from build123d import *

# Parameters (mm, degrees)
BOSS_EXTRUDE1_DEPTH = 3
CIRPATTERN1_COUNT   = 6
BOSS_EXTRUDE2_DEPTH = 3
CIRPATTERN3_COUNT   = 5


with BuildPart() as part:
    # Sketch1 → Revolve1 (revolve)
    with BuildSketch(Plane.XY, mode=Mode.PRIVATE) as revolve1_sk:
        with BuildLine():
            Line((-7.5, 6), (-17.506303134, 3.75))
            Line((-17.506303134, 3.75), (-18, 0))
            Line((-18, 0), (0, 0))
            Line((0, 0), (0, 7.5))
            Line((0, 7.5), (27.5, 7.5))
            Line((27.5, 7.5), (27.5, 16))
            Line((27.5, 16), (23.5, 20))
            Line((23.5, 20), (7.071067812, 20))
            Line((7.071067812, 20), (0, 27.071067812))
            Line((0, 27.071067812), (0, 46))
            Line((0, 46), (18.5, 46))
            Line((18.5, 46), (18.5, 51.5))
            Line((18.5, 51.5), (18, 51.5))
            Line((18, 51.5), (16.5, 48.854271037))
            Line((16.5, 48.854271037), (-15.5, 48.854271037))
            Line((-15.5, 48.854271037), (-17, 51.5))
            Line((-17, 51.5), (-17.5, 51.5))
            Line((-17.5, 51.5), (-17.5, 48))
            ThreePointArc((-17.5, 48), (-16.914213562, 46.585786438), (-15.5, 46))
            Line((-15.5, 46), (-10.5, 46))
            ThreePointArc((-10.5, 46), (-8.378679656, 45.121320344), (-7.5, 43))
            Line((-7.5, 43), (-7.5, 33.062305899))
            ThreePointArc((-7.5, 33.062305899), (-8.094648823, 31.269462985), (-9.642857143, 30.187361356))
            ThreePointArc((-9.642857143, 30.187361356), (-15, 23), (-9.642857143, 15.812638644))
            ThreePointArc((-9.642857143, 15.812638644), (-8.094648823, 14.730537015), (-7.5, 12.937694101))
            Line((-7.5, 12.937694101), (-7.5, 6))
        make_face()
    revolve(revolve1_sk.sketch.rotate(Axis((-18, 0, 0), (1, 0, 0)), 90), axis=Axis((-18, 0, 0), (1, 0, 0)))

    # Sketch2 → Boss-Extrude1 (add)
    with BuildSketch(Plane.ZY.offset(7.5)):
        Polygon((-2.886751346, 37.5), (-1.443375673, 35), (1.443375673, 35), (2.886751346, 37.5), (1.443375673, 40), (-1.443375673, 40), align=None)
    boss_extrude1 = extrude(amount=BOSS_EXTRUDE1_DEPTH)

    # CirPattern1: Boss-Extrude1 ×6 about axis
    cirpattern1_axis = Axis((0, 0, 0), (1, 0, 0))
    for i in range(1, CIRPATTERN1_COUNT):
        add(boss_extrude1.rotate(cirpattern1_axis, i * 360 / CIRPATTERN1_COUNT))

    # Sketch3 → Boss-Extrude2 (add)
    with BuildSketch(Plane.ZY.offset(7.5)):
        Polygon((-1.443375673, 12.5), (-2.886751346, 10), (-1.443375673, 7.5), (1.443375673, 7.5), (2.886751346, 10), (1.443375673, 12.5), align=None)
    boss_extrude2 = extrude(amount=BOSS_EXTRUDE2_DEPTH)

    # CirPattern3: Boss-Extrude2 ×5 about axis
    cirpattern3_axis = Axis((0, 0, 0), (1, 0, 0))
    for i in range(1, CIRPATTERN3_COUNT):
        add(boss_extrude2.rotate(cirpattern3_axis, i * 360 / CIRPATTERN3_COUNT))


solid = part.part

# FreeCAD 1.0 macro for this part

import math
import FreeCAD as App
import Part
import Sketcher

V = App.Vector
Q = App.Units.Quantity


def add_polygon(sketch, points):
    """Adds a closed chain of lines whose ends are joined by coincident constraints."""
    first, n = sketch.GeometryCount, len(points)
    for a, b in zip(points, points[1:] + points[:1]):
        sketch.addGeometry(Part.LineSegment(App.Vector(*a, 0), App.Vector(*b, 0)), False)
    for i in range(n):
        sketch.addConstraint(Sketcher.Constraint("Coincident", first + i, 2, first + (i + 1) % n, 1))

doc = App.newDocument("Part")
params = doc.addObject("Spreadsheet::Sheet", "Params")
for row, (alias, value) in enumerate([
    ("sketch1_radius", "2 mm"),
    ("sketch1_radius2", "3 mm"),
    ("sketch1_radius3", "7.5 mm"),
    ("sketch1_width", "18 mm"),
    ("sketch1_width2", "32 mm"),
    ("revolution_angle", "360 deg"),
    ("pad1_length", "3 mm"),
    ("pad2_length", "3 mm"),
], start=1):
    params.set(f"A{row}", alias)
    params.set(f"B{row}", "=" + value)
    params.setAlias(f"B{row}", alias)

body = doc.addObject("PartDesign::Body", "Body")

# Sketch on XY plane
sketch1 = body.newObject("Sketcher::SketchObject", "Sketch")
sketch1.AttachmentSupport = (doc.getObject("XY_Plane"), [""])
sketch1.MapMode = "FlatFace"
sketch1.addGeometry([
    Part.LineSegment(V(-7.5, 6, 0), V(-17.5, 3.8, 0)),  # 0
    Part.LineSegment(V(-17.5, 3.8, 0), V(-18, 0, 0)),  # 1
    Part.LineSegment(V(-18, 0, 0), V(0, 0, 0)),  # 2
    Part.LineSegment(V(0, 0, 0), V(0, 7.5, 0)),  # 3
    Part.LineSegment(V(0, 7.5, 0), V(27.5, 7.5, 0)),  # 4
    Part.LineSegment(V(27.5, 7.5, 0), V(27.5, 16, 0)),  # 5
    Part.LineSegment(V(27.5, 16, 0), V(23.5, 20, 0)),  # 6
    Part.LineSegment(V(23.5, 20, 0), V(7.1, 20, 0)),  # 7
    Part.LineSegment(V(7.1, 20, 0), V(0, 27.1, 0)),  # 8
    Part.LineSegment(V(0, 27.1, 0), V(0, 46, 0)),  # 9
    Part.LineSegment(V(0, 46, 0), V(18.5, 46, 0)),  # 10
    Part.LineSegment(V(18.5, 46, 0), V(18.5, 51.5, 0)),  # 11
    Part.LineSegment(V(18.5, 51.5, 0), V(18, 51.5, 0)),  # 12
    Part.LineSegment(V(18, 51.5, 0), V(16.5, 48.9, 0)),  # 13
    Part.LineSegment(V(16.5, 48.9, 0), V(-15.5, 48.9, 0)),  # 14
    Part.LineSegment(V(-15.5, 48.9, 0), V(-17, 51.5, 0)),  # 15
    Part.LineSegment(V(-17, 51.5, 0), V(-17.5, 51.5, 0)),  # 16
    Part.LineSegment(V(-17.5, 51.5, 0), V(-17.5, 48, 0)),  # 17
    Part.ArcOfCircle(Part.Circle(V(-15.5, 48, 0), V(0, 0, 1), 2), math.radians(-180), math.radians(-90)),  # 18
    Part.LineSegment(V(-15.5, 46, 0), V(-10.5, 46, 0)),  # 19
    Part.ArcOfCircle(Part.Circle(V(-10.5, 43, 0), V(0, 0, 1), 3), math.radians(0), math.radians(90)),  # 20
    Part.LineSegment(V(-7.5, 43, 0), V(-7.5, 33.1, 0)),  # 21
    Part.ArcOfCircle(Part.Circle(V(-10.5, 33.1, 0), V(0, 0, 1), 3), math.radians(-73), math.radians(0)),  # 22
    Part.ArcOfCircle(Part.Circle(V(-7.5, 23, 0), V(0, 0, 1), 7.5), math.radians(107), math.radians(253)),  # 23
    Part.ArcOfCircle(Part.Circle(V(-10.5, 12.9, 0), V(0, 0, 1), 3), math.radians(0), math.radians(73)),  # 24
    Part.LineSegment(V(-7.5, 12.9, 0), V(-7.5, 6, 0)),  # 25
], False)
sketch1.addConstraint([
    Sketcher.Constraint("Coincident", 0, 2, 1, 1),
    Sketcher.Constraint("Coincident", 1, 2, 2, 1),
    Sketcher.Constraint("Coincident", 2, 2, 3, 1),
    Sketcher.Constraint("Coincident", 3, 2, 4, 1),
    Sketcher.Constraint("Coincident", 4, 2, 5, 1),
    Sketcher.Constraint("Coincident", 5, 2, 6, 1),
    Sketcher.Constraint("Coincident", 6, 2, 7, 1),
    Sketcher.Constraint("Coincident", 7, 2, 8, 1),
    Sketcher.Constraint("Coincident", 8, 2, 9, 1),
    Sketcher.Constraint("Coincident", 9, 2, 10, 1),
    Sketcher.Constraint("Coincident", 10, 2, 11, 1),
    Sketcher.Constraint("Coincident", 11, 2, 12, 1),
    Sketcher.Constraint("Coincident", 12, 2, 13, 1),
    Sketcher.Constraint("Coincident", 13, 2, 14, 1),
    Sketcher.Constraint("Coincident", 14, 2, 15, 1),
    Sketcher.Constraint("Coincident", 15, 2, 16, 1),
    Sketcher.Constraint("Coincident", 16, 2, 17, 1),
    Sketcher.Constraint("Tangent", 17, 2, 18, 1),
    Sketcher.Constraint("Tangent", 18, 2, 19, 1),
    Sketcher.Constraint("Tangent", 19, 2, 20, 2),
    Sketcher.Constraint("Tangent", 20, 1, 21, 1),
    Sketcher.Constraint("Tangent", 21, 2, 22, 2),
    Sketcher.Constraint("Tangent", 22, 1, 23, 1),
    Sketcher.Constraint("Tangent", 23, 2, 24, 2),
    Sketcher.Constraint("Tangent", 24, 1, 25, 1),
    Sketcher.Constraint("Coincident", 25, 2, 0, 1),
    Sketcher.Constraint("Horizontal", 2),
    Sketcher.Constraint("Vertical", 3),
    Sketcher.Constraint("Horizontal", 4),
    Sketcher.Constraint("Vertical", 5),
    Sketcher.Constraint("Horizontal", 7),
    Sketcher.Constraint("Vertical", 9),
    Sketcher.Constraint("Horizontal", 10),
    Sketcher.Constraint("Vertical", 11),
    Sketcher.Constraint("Horizontal", 12),
    Sketcher.Constraint("Horizontal", 14),
    Sketcher.Constraint("Horizontal", 16),
    Sketcher.Constraint("Vertical", 17),
    Sketcher.Constraint("Horizontal", 19),
    Sketcher.Constraint("Vertical", 21),
    Sketcher.Constraint("Vertical", 25),
    Sketcher.Constraint("Coincident", 2, 2, -1, 1),
    Sketcher.Constraint("Equal", 20, 22),
    Sketcher.Constraint("Equal", 22, 24),
    Sketcher.Constraint("PointOnObject", 8, 2, -2),
    Sketcher.Constraint("Parallel", 6, 8),
    Sketcher.Constraint("Horizontal", 12, 2, 15, 2),
    Sketcher.Constraint("Horizontal", 10, 2, 18, 2),
    Sketcher.Constraint("Vertical", 22, 3, 24, 3),
    Sketcher.Constraint("Vertical", 18, 3, 14, 2),
    Sketcher.Constraint("Vertical", 23, 3, 20, 1),
    Sketcher.Constraint("Equal", 12, 16),
    Sketcher.Constraint("Equal", 13, 15),
    Sketcher.Constraint("Radius", 18, Q("2 mm")),
    Sketcher.Constraint("Radius", 20, Q("3 mm")),
    Sketcher.Constraint("Radius", 23, Q("7.5 mm")),
    Sketcher.Constraint("DistanceX", 2, 1, 2, 2, Q("18 mm")),
    Sketcher.Constraint("DistanceX", 14, 2, 14, 1, Q("32 mm")),
    Sketcher.Constraint("DistanceX", 19, 1, 19, 2, Q("5 mm")),
    Sketcher.Constraint("Angle", 6, Q("135 deg")),
    Sketcher.Constraint("Distance", 8, Q("10 mm")),
    Sketcher.Constraint("DistanceX", 4, 1, 4, 2, Q("27.5 mm")),
    Sketcher.Constraint("DistanceX", 10, 1, 10, 2, Q("18.5 mm")),
    Sketcher.Constraint("DistanceX", 12, 2, 12, 1, Q("0.5 mm")),
    Sketcher.Constraint("DistanceY", 3, 1, 3, 2, Q("7.5 mm")),
    Sketcher.Constraint("DistanceY", 5, 1, 5, 2, Q("8.5 mm")),
    Sketcher.Constraint("DistanceY", 11, 1, 11, 2, Q("5.5 mm")),
    Sketcher.Constraint("DistanceY", -1, 1, 18, 3, Q("48 mm")),
    Sketcher.Constraint("DistanceY", -1, 1, 23, 3, Q("23 mm")),
    Sketcher.Constraint("DistanceY", -1, 1, 6, 2, Q("20 mm")),
    Sketcher.Constraint("DistanceY", -1, 1, 25, 2, Q("6 mm")),
    Sketcher.Constraint("Angle", 1, Q("-97.5 deg")),
    Sketcher.Constraint("DistanceY", -1, 1, 0, 2, Q("3.75 mm")),
    Sketcher.Constraint("Distance", 13, Q("3.041362 mm")),
])
sketch1.setExpression("Constraints[53]", "Params.sketch1_radius")
sketch1.setExpression("Constraints[54]", "Params.sketch1_radius2")
sketch1.setExpression("Constraints[55]", "Params.sketch1_radius3")
sketch1.setExpression("Constraints[56]", "Params.sketch1_width")
sketch1.setExpression("Constraints[57]", "Params.sketch1_width2")
revolution = body.newObject("PartDesign::Revolution", "Revolution")
revolution.Profile = sketch1
revolution.ReferenceAxis = (sketch1, ["H_Axis"])
revolution.setExpression("Angle", "Params.revolution_angle")

# Sketch on YZ plane
sketch2 = body.newObject("Sketcher::SketchObject", "Sketch001")
sketch2.AttachmentSupport = (doc.getObject("YZ_Plane"), [""])
sketch2.MapMode = "FlatFace"
sketch2.AttachmentOffset = App.Placement(V(0, 0, -7.5), App.Rotation())
add_polygon(sketch2, [(37.5, -2.9), (35, -1.4), (35, 1.4), (37.5, 2.9), (40, 1.4), (40, -1.4)])  # lines 0-5
sketch2.addConstraint([
    Sketcher.Constraint("Vertical", 1),
    Sketcher.Constraint("Vertical", 4),
    Sketcher.Constraint("Symmetric", 2, 2, 5, 2, -1),
    Sketcher.Constraint("Parallel", 0, 3),
    Sketcher.Constraint("Parallel", 2, 5),
    Sketcher.Constraint("Horizontal", 1, 2, 3, 2),
    Sketcher.Constraint("Horizontal", 0, 2, 4, 2),
    Sketcher.Constraint("Angle", 0, Q("150 deg")),
    Sketcher.Constraint("DistanceX", -1, 1, 0, 2, Q("35 mm")),
    Sketcher.Constraint("DistanceX", -1, 1, 3, 2, Q("40 mm")),
    Sketcher.Constraint("DistanceY", 1, 1, 1, 2, Q("2.886751 mm")),
])
pad1 = body.newObject("PartDesign::Pad", "Pad")
pad1.Profile = sketch2
pad1.setExpression("Length", "Params.pad1_length")
pad1.Reversed = True
doc.recompute()

polarpattern = body.newObject("PartDesign::PolarPattern", "PolarPattern")
polarpattern.Originals = [pad1]
polarpattern.Axis = (doc.getObject("X_Axis"), [""])
polarpattern.Angle = 360
polarpattern.Occurrences = 6
body.Tip = polarpattern

# Sketch on YZ plane
sketch3 = body.newObject("Sketcher::SketchObject", "Sketch002")
sketch3.AttachmentSupport = (doc.getObject("YZ_Plane"), [""])
sketch3.MapMode = "FlatFace"
sketch3.AttachmentOffset = App.Placement(V(0, 0, -7.5), App.Rotation())
add_polygon(sketch3, [(12.5, -1.4), (10, -2.9), (7.5, -1.4), (7.5, 1.4), (10, 2.9), (12.5, 1.4)])  # lines 0-5
sketch3.addConstraint([
    Sketcher.Constraint("Vertical", 2),
    Sketcher.Constraint("Vertical", 5),
    Sketcher.Constraint("Symmetric", 0, 2, 3, 2, -1),
    Sketcher.Constraint("Parallel", 0, 3),
    Sketcher.Constraint("Parallel", 1, 4),
    Sketcher.Constraint("Horizontal", 2, 2, 4, 2),
    Sketcher.Constraint("Horizontal", 1, 2, 5, 2),
    Sketcher.Constraint("Angle", 0, Q("-150 deg")),
    Sketcher.Constraint("DistanceX", -1, 1, 0, 2, Q("10 mm")),
    Sketcher.Constraint("DistanceX", 2, 2, 4, 2, Q("5 mm")),
    Sketcher.Constraint("DistanceY", 2, 1, 2, 2, Q("2.886751 mm")),
])
pad2 = body.newObject("PartDesign::Pad", "Pad001")
pad2.Profile = sketch3
pad2.setExpression("Length", "Params.pad2_length")
pad2.Reversed = True
doc.recompute()

polarpattern2 = body.newObject("PartDesign::PolarPattern", "PolarPattern001")
polarpattern2.Originals = [pad2]
polarpattern2.Axis = (doc.getObject("X_Axis"), [""])
polarpattern2.Angle = 360
polarpattern2.Occurrences = 5
body.Tip = polarpattern2

doc.recompute()
